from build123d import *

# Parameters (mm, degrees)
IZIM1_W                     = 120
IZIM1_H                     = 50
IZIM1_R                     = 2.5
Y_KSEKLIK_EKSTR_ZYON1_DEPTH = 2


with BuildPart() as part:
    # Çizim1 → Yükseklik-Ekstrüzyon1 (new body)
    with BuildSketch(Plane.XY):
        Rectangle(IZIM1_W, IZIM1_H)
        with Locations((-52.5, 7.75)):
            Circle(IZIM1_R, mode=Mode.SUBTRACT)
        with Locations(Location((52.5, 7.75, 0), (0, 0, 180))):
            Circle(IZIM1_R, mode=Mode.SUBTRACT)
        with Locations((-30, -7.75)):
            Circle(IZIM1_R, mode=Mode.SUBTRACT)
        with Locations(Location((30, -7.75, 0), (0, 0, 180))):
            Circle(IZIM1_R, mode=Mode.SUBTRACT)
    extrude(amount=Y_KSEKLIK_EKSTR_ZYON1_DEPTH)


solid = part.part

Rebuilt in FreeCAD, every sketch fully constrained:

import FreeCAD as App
import Part
import Sketcher
from FreeCAD import Vector
Q = App.Units.Quantity


def add_polygon(sketch, points):
    """Adds a closed chain of lines whose ends are joined by coincident constraints."""
    first, n = sketch.GeometryCount, len(points)
    for a, b in zip(points, points[1:] + points[:1]):
        sketch.addGeometry(Part.LineSegment(App.Vector(*a, 0), App.Vector(*b, 0)), False)
    for i in range(n):
        sketch.addConstraint(Sketcher.Constraint("Coincident", first + i, 2, first + (i + 1) % n, 1))

doc = App.newDocument("Part")
body = doc.addObject("PartDesign::Body", "Body")

# Sketch on XY plane
sketch1 = body.newObject("Sketcher::SketchObject", "Sketch")
sketch1.AttachmentSupport = (doc.getObject("XY_Plane"), [""])
sketch1.MapMode = "FlatFace"
add_polygon(sketch1, [(-60, 25), (-60, -25), (60, -25), (60, 25)])  # lines 0-3
sketch1.addGeometry(Part.Circle(Vector(-30, -7.8, 0), Vector(0, 0, 1), 2.5), False)  # 4
sketch1.addGeometry(Part.Circle(Vector(30, -7.8, 0), Vector(0, 0, 1), 2.5), False)  # 5
sketch1.addGeometry(Part.Circle(Vector(-52.5, 7.8, 0), Vector(0, 0, 1), 2.5), False)  # 6
sketch1.addGeometry(Part.Circle(Vector(52.5, 7.8, 0), Vector(0, 0, 1), 2.5), False)  # 7
sketch1.addConstraint([
    Sketcher.Constraint("Vertical", 0),
    Sketcher.Constraint("Horizontal", 1),
    Sketcher.Constraint("Vertical", 2),
    Sketcher.Constraint("Horizontal", 3),
    Sketcher.Constraint("Equal", 4, 5),
    Sketcher.Constraint("Equal", 5, 6),
    Sketcher.Constraint("Equal", 6, 7),
    Sketcher.Constraint("Symmetric", 0, 2, 2, 2, -1, 1),
    Sketcher.Constraint("Symmetric", 4, 3, 5, 3, -2),
    Sketcher.Constraint("Symmetric", 6, 3, 7, 3, -2),
    Sketcher.Constraint("Diameter", 4, Q("5 mm")),
    Sketcher.Constraint("DistanceX", 1, 1, 1, 2, Q("120 mm")),
    Sketcher.Constraint("DistanceY", 0, 2, 0, 1, Q("50 mm")),
    Sketcher.Constraint("DistanceX", 4, 3, -1, 1, Q("30 mm")),
    Sketcher.Constraint("DistanceX", 6, 3, 7, 3, Q("105 mm")),
    Sketcher.Constraint("DistanceY", 4, 3, 6, 3, Q("15.5 mm")),
    Sketcher.Constraint("DistanceY", 4, 3, -1, 1, Q("7.75 mm")),
])
pad1 = body.newObject("PartDesign::Pad", "Pad")
pad1.Profile = sketch1
pad1.Length = 2

doc.recompute()
